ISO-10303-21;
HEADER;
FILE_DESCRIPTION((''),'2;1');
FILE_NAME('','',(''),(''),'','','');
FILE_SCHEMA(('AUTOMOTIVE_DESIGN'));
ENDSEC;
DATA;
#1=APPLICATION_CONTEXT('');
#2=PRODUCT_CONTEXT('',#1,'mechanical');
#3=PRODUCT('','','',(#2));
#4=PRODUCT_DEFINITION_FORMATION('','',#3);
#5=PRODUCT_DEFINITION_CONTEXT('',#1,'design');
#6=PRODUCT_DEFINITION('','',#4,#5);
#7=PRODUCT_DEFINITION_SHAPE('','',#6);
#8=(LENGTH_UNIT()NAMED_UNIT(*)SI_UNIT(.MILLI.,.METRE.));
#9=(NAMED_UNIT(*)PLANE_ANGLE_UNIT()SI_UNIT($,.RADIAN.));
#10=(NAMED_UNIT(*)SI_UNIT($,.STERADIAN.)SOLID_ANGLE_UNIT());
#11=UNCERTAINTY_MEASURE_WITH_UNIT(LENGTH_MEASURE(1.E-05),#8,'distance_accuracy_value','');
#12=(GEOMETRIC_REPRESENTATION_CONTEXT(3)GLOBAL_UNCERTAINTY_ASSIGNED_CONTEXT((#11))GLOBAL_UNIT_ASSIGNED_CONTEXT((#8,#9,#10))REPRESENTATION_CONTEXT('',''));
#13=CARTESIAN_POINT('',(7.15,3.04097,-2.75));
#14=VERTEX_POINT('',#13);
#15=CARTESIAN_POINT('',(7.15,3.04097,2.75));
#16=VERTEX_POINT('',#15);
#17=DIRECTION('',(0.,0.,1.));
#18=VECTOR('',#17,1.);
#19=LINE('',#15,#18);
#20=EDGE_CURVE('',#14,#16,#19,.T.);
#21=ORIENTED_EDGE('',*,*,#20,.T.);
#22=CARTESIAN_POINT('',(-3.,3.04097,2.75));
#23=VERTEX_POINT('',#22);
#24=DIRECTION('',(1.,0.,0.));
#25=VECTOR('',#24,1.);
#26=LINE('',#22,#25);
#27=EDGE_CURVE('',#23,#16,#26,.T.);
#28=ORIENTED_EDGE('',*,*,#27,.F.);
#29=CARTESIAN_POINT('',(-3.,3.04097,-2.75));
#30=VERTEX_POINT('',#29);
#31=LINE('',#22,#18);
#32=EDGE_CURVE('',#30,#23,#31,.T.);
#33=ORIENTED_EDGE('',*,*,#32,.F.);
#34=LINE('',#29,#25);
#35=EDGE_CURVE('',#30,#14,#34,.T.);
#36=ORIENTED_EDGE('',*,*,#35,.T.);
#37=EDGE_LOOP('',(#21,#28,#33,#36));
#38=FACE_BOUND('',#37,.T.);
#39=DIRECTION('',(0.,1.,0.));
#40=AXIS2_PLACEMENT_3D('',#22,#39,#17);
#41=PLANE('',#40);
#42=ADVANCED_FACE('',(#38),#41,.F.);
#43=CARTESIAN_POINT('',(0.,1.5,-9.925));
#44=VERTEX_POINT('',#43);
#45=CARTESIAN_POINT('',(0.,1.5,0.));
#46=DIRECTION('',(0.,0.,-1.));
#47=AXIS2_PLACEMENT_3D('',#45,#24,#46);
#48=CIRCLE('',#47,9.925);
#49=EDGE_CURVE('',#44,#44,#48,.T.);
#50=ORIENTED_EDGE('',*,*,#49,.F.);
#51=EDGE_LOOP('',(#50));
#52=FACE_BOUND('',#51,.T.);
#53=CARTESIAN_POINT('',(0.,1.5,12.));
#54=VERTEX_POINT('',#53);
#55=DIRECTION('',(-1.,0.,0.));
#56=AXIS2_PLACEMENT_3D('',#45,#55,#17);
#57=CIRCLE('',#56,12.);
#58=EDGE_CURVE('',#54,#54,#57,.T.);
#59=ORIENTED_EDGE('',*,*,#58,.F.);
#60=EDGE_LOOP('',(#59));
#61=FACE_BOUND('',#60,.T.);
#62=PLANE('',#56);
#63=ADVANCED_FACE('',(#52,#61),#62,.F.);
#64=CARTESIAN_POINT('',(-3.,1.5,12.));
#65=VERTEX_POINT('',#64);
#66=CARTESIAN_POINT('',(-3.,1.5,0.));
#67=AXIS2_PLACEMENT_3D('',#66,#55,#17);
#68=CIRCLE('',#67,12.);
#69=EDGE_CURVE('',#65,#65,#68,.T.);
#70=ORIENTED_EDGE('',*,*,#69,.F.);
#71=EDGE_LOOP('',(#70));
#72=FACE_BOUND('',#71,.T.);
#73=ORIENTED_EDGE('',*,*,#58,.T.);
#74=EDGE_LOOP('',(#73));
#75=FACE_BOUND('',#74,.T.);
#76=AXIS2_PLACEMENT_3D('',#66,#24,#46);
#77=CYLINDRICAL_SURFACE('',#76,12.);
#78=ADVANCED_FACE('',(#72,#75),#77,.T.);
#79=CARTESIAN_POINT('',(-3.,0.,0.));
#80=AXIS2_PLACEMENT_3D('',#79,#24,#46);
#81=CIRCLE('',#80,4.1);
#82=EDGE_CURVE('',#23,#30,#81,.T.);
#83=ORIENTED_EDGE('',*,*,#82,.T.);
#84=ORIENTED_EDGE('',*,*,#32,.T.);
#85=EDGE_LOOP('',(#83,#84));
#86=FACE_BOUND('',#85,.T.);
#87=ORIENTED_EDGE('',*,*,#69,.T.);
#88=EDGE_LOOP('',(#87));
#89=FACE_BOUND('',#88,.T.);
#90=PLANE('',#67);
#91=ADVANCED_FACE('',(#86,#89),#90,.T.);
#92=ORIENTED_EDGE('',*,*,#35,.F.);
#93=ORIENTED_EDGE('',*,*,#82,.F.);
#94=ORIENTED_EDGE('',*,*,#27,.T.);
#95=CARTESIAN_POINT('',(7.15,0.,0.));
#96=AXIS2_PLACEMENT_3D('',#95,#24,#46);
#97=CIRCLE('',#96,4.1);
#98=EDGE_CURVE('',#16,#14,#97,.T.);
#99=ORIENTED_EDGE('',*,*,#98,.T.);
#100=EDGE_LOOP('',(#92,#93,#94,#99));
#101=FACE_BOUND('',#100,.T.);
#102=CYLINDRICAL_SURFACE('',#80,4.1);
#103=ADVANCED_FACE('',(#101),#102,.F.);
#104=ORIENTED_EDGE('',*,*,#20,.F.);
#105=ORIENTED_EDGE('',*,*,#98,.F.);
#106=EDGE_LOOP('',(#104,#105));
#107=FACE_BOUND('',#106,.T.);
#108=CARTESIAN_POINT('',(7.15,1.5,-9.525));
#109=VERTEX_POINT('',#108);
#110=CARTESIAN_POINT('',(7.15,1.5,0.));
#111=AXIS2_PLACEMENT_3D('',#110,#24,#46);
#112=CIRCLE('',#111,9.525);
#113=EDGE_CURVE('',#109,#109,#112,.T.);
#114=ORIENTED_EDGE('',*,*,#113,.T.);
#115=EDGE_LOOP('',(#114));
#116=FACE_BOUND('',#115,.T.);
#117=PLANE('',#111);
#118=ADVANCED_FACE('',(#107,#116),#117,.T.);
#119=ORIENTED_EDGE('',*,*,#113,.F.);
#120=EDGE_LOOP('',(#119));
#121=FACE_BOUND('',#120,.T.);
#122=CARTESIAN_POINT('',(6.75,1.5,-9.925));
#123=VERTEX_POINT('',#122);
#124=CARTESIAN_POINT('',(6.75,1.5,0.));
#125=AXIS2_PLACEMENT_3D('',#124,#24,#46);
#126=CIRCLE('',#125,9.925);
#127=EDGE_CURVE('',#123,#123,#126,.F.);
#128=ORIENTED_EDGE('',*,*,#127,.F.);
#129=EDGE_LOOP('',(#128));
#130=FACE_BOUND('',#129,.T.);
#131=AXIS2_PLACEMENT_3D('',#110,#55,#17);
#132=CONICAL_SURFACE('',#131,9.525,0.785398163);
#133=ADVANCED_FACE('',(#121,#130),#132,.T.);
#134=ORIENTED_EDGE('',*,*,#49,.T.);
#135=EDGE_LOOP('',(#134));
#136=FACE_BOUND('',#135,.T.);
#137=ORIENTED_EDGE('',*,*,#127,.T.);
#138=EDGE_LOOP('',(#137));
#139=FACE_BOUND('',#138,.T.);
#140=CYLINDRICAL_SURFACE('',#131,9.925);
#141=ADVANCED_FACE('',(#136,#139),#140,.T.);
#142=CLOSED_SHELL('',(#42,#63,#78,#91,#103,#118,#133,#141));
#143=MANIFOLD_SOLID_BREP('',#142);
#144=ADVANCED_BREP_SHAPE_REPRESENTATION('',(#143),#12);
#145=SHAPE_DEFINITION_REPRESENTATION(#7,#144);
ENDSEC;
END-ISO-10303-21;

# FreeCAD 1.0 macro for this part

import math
import FreeCAD as App
import Part
import Sketcher
from FreeCAD import Vector
Q = App.Units.Quantity


def edges_at(feature, points):
    """Names of the edges that pass closest to the given points."""
    edges = feature.Shape.Edges
    near = lambda p: min(range(len(edges)), key=lambda i: edges[i].distToShape(Part.Vertex(*p))[0])
    return sorted({f"Edge{near(p) + 1}" for p in points})

doc = App.newDocument("Part")
params = doc.addObject("Spreadsheet::Sheet", "Params")
for row, (alias, value) in enumerate([
    ("sketch1_diameter", "19.85 mm"),
    ("pad1_length", "7.15 mm"),
    ("sketch2_diameter", "24 mm"),
    ("pad2_length", "3 mm"),
    ("sketch3_radius", "4.1 mm"),
    ("sketch3_height", "5.5 mm"),
    ("chamfer_size", "0.4 mm"),
], start=1):
    params.set(f"A{row}", alias)
    params.set(f"B{row}", "=" + value)
    params.setAlias(f"B{row}", alias)

body = doc.addObject("PartDesign::Body", "Body")

# Sketch on YZ plane
sketch1 = doc.addObject("Sketcher::SketchObject", "Sketch")
body.addObject(sketch1)
sketch1.AttachmentSupport = (doc.YZ_Plane, [""])
sketch1.MapMode = "FlatFace"
sketch1.addGeometry(Part.Circle(Vector(1.5, 0, 0), Vector(0, 0, 1), 9.925), False)
sketch1.addConstraint([
    Sketcher.Constraint("PointOnObject", 0, 3, -1),
    Sketcher.Constraint("Diameter", 0, Q("19.85 mm")),
    Sketcher.Constraint("DistanceX", -1, 1, 0, 3, Q("1.5 mm")),
])
sketch1.setExpression("Constraints[1]", "Params.sketch1_diameter")
pad1 = doc.addObject("PartDesign::Pad", "Pad")
body.addObject(pad1)
pad1.Profile = sketch1
pad1.setExpression("Length", "Params.pad1_length")

# Sketch on YZ plane
sketch2 = doc.addObject("Sketcher::SketchObject", "Sketch001")
body.addObject(sketch2)
sketch2.AttachmentSupport = (doc.YZ_Plane, [""])
sketch2.MapMode = "FlatFace"
sketch2.addGeometry(Part.Circle(Vector(1.5, 0, 0), Vector(0, 0, 1), 12), False)
sketch2.addConstraint([
    Sketcher.Constraint("PointOnObject", 0, 3, -1),
    Sketcher.Constraint("Diameter", 0, Q("24 mm")),
    Sketcher.Constraint("DistanceX", -1, 1, 0, 3, Q("1.5 mm")),
])
sketch2.setExpression("Constraints[1]", "Params.sketch2_diameter")
pad2 = doc.addObject("PartDesign::Pad", "Pad001")
body.addObject(pad2)
pad2.Profile = sketch2
pad2.setExpression("Length", "Params.pad2_length")
pad2.Reversed = True

# Sketch on YZ plane
sketch3 = doc.addObject("Sketcher::SketchObject", "Sketch002")
body.addObject(sketch3)
sketch3.AttachmentSupport = (doc.YZ_Plane, [""])
sketch3.MapMode = "FlatFace"
sketch3.AttachmentOffset = App.Placement(Vector(0, 0, 7.15), App.Rotation())
sketch3.addGeometry([
    Part.LineSegment(Vector(3.04097, -2.75, 0), Vector(3.04097, 2.75, 0)),
    Part.ArcOfCircle(Part.Circle(Vector(0, 0, 0), Vector(0, 0, 1), 4.1), math.radians(42.123563), math.radians(317.876437)),
], False)
sketch3.addConstraint([
    Sketcher.Constraint("Coincident", 0, 1, 1, 2),
    Sketcher.Constraint("Coincident", 1, 1, 0, 2),
    Sketcher.Constraint("Vertical", 0),
    Sketcher.Constraint("Coincident", 1, 3, -1, 1),
    Sketcher.Constraint("Radius", 1, Q("4.1 mm")),
    Sketcher.Constraint("DistanceY", 0, 1, 0, 2, Q("5.5 mm")),
])
sketch3.setExpression("Constraints[4]", "Params.sketch3_radius")
sketch3.setExpression("Constraints[5]", "Params.sketch3_height")
pocket1 = doc.addObject("PartDesign::Pocket", "Pocket")
body.addObject(pocket1)
pocket1.Profile = sketch3
pocket1.Type = "ThroughAll"
pocket1.Midplane = True
doc.recompute()

chamfer = doc.addObject("PartDesign::Chamfer", "Chamfer")
body.addObject(chamfer)
chamfer.Base = (pocket1, edges_at(pocket1, [(7.15, 1.5, 9.925)]))
chamfer.setExpression("Size", "Params.chamfer_size")

doc.recompute()
